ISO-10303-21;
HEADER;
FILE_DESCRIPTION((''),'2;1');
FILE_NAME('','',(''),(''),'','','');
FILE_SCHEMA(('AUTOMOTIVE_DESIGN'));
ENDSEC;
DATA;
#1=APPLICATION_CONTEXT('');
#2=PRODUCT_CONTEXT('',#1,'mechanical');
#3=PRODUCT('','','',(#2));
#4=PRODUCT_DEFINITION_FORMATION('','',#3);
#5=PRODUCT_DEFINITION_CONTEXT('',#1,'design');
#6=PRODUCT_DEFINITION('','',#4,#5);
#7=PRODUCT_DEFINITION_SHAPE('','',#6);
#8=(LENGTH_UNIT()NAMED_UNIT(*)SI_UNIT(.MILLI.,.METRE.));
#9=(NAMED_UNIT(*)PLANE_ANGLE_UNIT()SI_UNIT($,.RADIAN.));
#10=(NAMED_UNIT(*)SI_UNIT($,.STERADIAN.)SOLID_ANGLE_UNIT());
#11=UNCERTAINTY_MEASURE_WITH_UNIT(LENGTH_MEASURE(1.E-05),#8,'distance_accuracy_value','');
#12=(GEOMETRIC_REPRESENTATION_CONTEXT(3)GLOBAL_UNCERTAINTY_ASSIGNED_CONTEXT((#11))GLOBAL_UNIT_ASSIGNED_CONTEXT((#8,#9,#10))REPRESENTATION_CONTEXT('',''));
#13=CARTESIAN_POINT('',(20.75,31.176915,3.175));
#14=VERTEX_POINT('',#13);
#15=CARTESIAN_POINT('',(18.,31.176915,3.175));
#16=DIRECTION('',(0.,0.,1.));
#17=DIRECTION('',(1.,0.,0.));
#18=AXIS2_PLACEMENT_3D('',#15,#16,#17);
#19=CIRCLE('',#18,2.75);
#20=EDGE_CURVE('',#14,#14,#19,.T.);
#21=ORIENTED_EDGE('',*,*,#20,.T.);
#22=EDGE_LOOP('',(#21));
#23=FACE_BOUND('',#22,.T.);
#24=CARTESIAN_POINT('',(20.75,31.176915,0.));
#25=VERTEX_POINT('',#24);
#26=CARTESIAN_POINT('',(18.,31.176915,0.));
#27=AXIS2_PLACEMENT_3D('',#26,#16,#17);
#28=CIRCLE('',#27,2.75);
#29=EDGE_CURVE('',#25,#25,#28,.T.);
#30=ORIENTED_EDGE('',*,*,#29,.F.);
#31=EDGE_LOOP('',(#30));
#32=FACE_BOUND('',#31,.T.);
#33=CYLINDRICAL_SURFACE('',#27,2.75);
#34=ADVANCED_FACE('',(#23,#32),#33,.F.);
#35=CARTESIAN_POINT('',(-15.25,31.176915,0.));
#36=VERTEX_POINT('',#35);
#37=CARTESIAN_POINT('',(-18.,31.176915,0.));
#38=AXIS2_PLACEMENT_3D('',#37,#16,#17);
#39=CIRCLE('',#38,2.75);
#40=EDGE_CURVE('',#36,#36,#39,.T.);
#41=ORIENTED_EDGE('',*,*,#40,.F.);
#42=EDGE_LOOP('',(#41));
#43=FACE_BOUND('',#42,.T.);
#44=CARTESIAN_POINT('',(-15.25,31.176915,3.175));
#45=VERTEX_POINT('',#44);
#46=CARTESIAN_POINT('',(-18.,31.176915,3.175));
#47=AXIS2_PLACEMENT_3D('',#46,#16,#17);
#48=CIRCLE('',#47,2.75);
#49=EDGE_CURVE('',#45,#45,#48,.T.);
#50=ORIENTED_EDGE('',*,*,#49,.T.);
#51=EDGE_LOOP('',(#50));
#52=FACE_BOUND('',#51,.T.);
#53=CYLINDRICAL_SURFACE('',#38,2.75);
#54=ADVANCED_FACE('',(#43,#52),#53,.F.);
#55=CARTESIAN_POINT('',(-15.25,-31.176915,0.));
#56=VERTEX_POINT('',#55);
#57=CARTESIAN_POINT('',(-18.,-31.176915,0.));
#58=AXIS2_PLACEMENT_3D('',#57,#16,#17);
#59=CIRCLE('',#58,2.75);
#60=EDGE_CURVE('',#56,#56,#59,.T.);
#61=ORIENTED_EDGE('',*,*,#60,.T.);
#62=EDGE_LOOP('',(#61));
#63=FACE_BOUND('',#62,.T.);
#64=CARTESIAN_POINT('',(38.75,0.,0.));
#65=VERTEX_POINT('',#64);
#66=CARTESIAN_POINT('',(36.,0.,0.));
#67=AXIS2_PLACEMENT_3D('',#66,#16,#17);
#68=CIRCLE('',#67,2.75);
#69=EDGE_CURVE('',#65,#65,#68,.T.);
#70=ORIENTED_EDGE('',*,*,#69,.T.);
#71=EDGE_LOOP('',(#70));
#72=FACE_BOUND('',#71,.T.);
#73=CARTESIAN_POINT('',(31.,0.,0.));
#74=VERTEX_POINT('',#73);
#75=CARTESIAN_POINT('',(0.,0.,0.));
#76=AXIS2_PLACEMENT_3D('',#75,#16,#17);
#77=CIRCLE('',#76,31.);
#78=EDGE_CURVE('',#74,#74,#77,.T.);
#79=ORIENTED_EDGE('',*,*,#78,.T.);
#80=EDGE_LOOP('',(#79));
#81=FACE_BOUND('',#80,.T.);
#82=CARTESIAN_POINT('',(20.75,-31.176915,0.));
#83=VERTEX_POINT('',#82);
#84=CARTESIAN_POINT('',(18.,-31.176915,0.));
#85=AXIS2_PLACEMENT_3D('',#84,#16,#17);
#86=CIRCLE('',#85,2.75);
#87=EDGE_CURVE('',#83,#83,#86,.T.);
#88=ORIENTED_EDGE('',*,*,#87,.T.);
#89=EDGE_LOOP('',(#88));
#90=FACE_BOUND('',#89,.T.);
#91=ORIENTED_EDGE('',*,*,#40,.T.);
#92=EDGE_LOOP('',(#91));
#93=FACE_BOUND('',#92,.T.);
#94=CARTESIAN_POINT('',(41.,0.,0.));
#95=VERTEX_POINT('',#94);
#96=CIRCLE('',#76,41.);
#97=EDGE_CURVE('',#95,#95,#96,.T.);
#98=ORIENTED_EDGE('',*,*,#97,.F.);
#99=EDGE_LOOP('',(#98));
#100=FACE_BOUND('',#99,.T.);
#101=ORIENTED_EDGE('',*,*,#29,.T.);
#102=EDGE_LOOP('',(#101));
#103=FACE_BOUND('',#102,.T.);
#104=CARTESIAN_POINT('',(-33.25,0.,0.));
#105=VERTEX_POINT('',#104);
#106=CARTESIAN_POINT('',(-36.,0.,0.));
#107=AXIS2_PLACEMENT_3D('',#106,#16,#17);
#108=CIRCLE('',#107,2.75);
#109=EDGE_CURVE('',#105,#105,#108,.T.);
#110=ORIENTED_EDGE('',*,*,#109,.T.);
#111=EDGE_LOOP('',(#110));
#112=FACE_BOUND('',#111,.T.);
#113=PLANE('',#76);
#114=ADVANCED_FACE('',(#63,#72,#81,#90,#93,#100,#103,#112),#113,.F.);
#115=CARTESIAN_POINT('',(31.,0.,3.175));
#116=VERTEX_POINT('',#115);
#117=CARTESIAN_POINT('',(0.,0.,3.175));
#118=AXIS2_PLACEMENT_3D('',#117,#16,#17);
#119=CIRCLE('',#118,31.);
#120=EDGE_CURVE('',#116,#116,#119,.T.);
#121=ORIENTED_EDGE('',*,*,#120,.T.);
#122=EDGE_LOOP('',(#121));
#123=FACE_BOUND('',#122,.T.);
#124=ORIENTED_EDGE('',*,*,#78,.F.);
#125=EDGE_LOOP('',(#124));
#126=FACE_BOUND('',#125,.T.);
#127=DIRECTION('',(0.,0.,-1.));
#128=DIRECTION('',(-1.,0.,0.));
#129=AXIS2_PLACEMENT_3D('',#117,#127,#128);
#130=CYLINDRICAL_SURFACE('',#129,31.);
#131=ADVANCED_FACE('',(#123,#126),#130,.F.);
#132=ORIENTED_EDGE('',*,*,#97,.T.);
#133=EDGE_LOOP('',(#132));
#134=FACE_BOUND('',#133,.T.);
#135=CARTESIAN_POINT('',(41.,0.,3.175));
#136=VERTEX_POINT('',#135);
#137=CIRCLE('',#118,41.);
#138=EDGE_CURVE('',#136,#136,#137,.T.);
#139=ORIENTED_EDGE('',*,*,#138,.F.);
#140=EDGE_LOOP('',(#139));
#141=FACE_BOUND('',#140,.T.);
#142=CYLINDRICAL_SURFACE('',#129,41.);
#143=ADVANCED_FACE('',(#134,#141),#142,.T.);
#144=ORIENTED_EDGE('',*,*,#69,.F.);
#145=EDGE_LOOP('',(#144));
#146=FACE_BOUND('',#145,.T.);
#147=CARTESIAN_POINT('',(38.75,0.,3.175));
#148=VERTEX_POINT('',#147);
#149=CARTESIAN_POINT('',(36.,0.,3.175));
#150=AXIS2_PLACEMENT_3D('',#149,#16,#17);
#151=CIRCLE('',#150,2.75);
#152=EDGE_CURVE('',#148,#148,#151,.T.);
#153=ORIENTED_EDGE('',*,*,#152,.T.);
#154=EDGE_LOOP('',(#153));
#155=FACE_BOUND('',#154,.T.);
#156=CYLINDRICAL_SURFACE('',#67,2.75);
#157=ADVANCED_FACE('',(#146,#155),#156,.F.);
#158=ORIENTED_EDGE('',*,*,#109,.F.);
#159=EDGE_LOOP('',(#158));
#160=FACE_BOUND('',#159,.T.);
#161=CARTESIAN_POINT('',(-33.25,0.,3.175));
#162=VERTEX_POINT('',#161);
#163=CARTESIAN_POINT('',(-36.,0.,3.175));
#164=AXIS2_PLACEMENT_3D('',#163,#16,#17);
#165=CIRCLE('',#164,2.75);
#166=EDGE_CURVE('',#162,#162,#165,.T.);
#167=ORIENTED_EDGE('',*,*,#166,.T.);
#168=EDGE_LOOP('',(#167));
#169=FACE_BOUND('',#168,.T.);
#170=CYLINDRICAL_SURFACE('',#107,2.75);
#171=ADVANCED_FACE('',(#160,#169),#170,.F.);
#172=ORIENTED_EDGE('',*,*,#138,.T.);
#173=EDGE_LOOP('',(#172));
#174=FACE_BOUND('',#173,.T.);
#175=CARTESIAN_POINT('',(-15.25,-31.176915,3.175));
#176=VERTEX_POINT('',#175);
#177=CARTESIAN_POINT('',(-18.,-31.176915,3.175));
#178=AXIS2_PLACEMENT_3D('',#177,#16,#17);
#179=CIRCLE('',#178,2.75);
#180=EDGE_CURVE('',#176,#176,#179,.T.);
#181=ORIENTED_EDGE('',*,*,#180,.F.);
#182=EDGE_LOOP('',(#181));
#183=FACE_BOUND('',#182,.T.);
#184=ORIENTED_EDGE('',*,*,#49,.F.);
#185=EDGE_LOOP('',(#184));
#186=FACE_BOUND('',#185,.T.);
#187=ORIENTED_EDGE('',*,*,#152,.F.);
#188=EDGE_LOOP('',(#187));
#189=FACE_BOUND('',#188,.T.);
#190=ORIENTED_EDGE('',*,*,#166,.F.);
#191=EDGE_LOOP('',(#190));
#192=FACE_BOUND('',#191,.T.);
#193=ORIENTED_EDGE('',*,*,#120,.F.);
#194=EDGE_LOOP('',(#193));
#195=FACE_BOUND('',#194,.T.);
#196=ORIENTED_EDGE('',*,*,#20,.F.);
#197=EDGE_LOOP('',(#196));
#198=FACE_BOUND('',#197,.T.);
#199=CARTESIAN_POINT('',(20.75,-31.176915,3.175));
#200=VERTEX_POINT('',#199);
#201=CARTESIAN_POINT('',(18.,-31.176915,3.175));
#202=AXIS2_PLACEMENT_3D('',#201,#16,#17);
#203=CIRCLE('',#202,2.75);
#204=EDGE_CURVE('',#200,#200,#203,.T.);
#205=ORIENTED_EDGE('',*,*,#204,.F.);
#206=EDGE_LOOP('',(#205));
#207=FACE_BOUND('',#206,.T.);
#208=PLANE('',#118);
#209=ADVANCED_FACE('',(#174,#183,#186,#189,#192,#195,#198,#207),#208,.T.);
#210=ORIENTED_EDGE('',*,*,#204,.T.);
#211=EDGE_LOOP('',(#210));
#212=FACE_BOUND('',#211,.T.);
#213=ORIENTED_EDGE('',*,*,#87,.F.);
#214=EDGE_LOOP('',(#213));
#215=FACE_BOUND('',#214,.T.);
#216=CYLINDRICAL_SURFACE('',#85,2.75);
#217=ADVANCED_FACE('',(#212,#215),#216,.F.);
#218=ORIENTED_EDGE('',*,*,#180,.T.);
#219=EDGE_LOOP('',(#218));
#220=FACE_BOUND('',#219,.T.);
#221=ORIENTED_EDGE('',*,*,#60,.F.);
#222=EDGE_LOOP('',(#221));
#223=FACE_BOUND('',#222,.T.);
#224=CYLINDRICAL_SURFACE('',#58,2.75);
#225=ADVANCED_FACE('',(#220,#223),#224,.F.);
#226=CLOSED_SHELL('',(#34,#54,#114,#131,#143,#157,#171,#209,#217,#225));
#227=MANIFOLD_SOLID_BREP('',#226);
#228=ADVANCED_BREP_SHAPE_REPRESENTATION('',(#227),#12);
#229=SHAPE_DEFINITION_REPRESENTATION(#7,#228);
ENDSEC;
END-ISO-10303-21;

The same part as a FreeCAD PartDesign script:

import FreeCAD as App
import Part
import Sketcher

doc = App.newDocument("Part")
params = doc.addObject("Spreadsheet::Sheet", "Params")
for row, (alias, value) in enumerate([
    ("sketch1_diameter", "82 mm"),
    ("sketch1_diameter2", "62 mm"),
    ("pad1_length", "3.175 mm"),
    ("sketch2_diameter", "5.5 mm"),
], start=1):
    params.set(f"A{row}", alias)
    params.set(f"B{row}", "=" + value)
    params.setAlias(f"B{row}", alias)

body = doc.addObject("PartDesign::Body", "Body")

sketch1 = doc.addObject("Sketcher::SketchObject", "Sketch")
body.addObject(sketch1)
sketch1.AttachmentSupport = (doc.XY_Plane, [""])
sketch1.MapMode = "FlatFace"
sketch1.addGeometry(Part.Circle(App.Vector(0, 0, 0), App.Vector(0, 0, 1), 41), False)
sketch1.addGeometry(Part.Circle(App.Vector(0, 0, 0), App.Vector(0, 0, 1), 31), False)
sketch1.addConstraint(Sketcher.Constraint("Coincident", 0, 3, -1, 1))
sketch1.addConstraint(Sketcher.Constraint("Coincident", 1, 3, -1, 1))
sketch1.addConstraint(Sketcher.Constraint("Diameter", 0, 82.0))
sketch1.addConstraint(Sketcher.Constraint("Diameter", 1, 62.0))
sketch1.setExpression("Constraints[2]", "Params.sketch1_diameter")
sketch1.setExpression("Constraints[3]", "Params.sketch1_diameter2")
pad1 = doc.addObject("PartDesign::Pad", "Pad")
body.addObject(pad1)
pad1.Profile = sketch1
pad1.setExpression("Length", "Params.pad1_length")

sketch2 = doc.addObject("Sketcher::SketchObject", "Sketch001")
body.addObject(sketch2)
sketch2.AttachmentSupport = (doc.XY_Plane, [""])
sketch2.MapMode = "FlatFace"
sketch2.AttachmentOffset = App.Placement(App.Vector(0, 0, 3.175), App.Rotation())
sketch2.addGeometry(Part.Circle(App.Vector(-18, 31.2, 0), App.Vector(0, 0, 1), 2.8), False)
sketch2.addGeometry(Part.Circle(App.Vector(18, 31.2, 0), App.Vector(0, 0, 1), 2.8), False)
sketch2.addGeometry(Part.Circle(App.Vector(36, 0, 0), App.Vector(0, 0, 1), 2.8), False)
sketch2.addGeometry(Part.Circle(App.Vector(18, -31.2, 0), App.Vector(0, 0, 1), 2.8), False)
sketch2.addGeometry(Part.Circle(App.Vector(-18, -31.2, 0), App.Vector(0, 0, 1), 2.8), False)
sketch2.addGeometry(Part.Circle(App.Vector(-36, 0, 0), App.Vector(0, 0, 1), 2.8), False)
sketch2.addConstraint(Sketcher.Constraint("Equal", 0, 1))
sketch2.addConstraint(Sketcher.Constraint("Equal", 1, 2))
sketch2.addConstraint(Sketcher.Constraint("Equal", 2, 3))
sketch2.addConstraint(Sketcher.Constraint("Equal", 3, 4))
sketch2.addConstraint(Sketcher.Constraint("Equal", 4, 5))
sketch2.addConstraint(Sketcher.Constraint("Symmetric", 0, 3, 3, 3, -1, 1))
sketch2.addConstraint(Sketcher.Constraint("Symmetric", 1, 3, 4, 3, -1, 1))
sketch2.addConstraint(Sketcher.Constraint("Symmetric", 2, 3, 5, 3, -1, 1))
sketch2.addConstraint(Sketcher.Constraint("Symmetric", 0, 3, 1, 3, -2))
sketch2.addConstraint(Sketcher.Constraint("PointOnObject", 2, 3, -1))
sketch2.addConstraint(Sketcher.Constraint("Diameter", 0, 5.5))
sketch2.addConstraint(Sketcher.Constraint("DistanceX", 0, 3, -1, 1, 18.0))
sketch2.addConstraint(Sketcher.Constraint("DistanceX", -1, 1, 2, 3, 36.0))
sketch2.addConstraint(Sketcher.Constraint("DistanceY", 3, 3, 1, 3, 62.353829))
sketch2.setExpression("Constraints[10]", "Params.sketch2_diameter")
pocket1 = doc.addObject("PartDesign::Pocket", "Pocket")
body.addObject(pocket1)
pocket1.Profile = sketch2
pocket1.Type = "ThroughAll"

doc.recompute()
